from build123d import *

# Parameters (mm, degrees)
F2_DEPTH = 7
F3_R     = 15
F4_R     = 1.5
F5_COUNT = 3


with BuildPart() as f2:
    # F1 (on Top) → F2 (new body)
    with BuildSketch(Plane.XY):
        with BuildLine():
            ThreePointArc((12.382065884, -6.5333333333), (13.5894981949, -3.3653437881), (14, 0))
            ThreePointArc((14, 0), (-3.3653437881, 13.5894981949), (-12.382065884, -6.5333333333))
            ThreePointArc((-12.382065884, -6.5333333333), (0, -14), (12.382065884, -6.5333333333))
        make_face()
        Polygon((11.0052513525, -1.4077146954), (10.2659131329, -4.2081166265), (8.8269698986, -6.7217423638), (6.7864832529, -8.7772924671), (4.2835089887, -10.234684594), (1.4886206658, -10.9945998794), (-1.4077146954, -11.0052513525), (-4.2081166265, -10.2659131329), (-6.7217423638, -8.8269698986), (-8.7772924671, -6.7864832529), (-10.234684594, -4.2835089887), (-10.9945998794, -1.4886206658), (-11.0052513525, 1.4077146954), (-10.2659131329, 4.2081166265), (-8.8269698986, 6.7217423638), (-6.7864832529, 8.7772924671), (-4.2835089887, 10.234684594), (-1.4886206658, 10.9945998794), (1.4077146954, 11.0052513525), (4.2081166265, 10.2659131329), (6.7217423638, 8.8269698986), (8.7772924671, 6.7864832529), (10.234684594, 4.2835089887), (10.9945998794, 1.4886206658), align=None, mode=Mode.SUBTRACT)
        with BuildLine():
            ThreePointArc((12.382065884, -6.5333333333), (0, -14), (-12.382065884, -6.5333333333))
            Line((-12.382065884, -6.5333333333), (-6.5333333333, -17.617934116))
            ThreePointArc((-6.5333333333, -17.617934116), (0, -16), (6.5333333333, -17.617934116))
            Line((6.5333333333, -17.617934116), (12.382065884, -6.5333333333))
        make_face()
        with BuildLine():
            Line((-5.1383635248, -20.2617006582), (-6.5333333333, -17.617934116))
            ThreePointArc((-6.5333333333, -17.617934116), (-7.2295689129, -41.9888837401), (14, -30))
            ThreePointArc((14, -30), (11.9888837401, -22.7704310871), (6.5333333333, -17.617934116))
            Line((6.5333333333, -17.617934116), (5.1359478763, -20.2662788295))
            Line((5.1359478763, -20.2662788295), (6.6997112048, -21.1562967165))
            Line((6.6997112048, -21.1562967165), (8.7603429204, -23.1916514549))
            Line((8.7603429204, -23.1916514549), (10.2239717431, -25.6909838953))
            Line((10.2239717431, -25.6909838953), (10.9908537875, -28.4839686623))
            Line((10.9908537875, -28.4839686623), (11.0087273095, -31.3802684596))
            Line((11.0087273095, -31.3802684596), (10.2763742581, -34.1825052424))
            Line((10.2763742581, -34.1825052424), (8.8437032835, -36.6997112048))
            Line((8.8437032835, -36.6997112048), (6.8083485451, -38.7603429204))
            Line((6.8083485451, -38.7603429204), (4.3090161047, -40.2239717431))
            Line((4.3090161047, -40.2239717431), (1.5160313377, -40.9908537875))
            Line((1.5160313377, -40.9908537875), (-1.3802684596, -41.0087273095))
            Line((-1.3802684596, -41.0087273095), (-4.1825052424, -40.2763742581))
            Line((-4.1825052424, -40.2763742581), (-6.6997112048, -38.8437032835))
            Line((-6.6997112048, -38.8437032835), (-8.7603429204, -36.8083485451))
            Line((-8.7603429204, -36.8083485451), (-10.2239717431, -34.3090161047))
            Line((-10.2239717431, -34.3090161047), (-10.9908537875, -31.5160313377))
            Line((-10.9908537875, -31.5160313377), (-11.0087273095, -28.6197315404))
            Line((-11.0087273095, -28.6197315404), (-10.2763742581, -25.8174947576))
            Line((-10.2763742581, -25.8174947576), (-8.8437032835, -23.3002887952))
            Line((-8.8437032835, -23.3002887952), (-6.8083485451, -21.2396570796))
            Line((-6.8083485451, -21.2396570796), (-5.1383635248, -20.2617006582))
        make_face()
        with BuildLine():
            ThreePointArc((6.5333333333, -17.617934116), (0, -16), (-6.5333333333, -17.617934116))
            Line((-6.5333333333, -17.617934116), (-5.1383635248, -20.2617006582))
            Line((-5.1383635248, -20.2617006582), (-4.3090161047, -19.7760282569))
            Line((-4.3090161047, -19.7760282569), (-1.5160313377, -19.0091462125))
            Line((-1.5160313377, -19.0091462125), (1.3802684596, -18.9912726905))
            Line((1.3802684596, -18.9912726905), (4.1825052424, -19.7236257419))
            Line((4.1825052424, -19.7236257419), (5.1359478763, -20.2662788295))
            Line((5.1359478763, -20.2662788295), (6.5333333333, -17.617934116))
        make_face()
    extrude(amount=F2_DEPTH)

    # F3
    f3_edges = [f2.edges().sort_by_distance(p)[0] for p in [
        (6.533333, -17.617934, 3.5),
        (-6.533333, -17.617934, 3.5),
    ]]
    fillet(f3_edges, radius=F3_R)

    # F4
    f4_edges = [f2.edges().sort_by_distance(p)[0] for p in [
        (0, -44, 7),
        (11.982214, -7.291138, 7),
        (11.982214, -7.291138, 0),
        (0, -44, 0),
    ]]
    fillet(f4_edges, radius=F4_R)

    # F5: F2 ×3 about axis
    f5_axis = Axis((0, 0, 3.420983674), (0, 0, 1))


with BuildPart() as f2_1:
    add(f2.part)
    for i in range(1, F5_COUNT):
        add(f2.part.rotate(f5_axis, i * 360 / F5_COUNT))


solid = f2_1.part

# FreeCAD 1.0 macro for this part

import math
import FreeCAD as App
import Part
import Sketcher

V = App.Vector


def edges_at(feature, points):
    """Names of the edges that pass closest to the given points."""
    edges = feature.Shape.Edges
    near = lambda p: min(range(len(edges)), key=lambda i: edges[i].distToShape(Part.Vertex(*p))[0])
    return sorted({f"Edge{near(p) + 1}" for p in points})

doc = App.newDocument("Part")
body = doc.addObject("PartDesign::Body", "Body")

# Sketch on XY plane
sketch1 = body.newObject("Sketcher::SketchObject", "Sketch")
sketch1.AttachmentSupport = (doc.getObject("XY_Plane"), [""])
sketch1.MapMode = "FlatFace"
sketch1.addGeometry([
    Part.ArcOfCircle(Part.Circle(V(0, 0, 0), V(0, 0, 1), 14), math.radians(-27.818139), math.radians(0)),  # 0
    Part.ArcOfCircle(Part.Circle(V(0, 0, 0), V(0, 0, 1), 14), math.radians(0), math.radians(207.818139)),  # 1
    Part.LineSegment(V(-12.382066, -6.533333, 0), V(-6.533333, -17.617934, 0)),  # 2
    Part.ArcOfCircle(Part.Circle(V(0, -30, 0), V(0, 0, 1), 14), math.radians(117.818139), math.radians(360)),  # 3
    Part.ArcOfCircle(Part.Circle(V(0, -30, 0), V(0, 0, 1), 14), math.radians(0), math.radians(62.181861)),  # 4
    Part.LineSegment(V(6.533333, -17.617934, 0), V(12.382066, -6.533333, 0)),  # 5
    Part.LineSegment(V(10.9946, 1.488621, 0), V(11.005251, -1.407715, 0)),  # 6
    Part.LineSegment(V(11.005251, -1.407715, 0), V(10.265913, -4.208117, 0)),  # 7
    Part.LineSegment(V(10.265913, -4.208117, 0), V(8.82697, -6.721742, 0)),  # 8
    Part.LineSegment(V(8.82697, -6.721742, 0), V(6.786483, -8.777292, 0)),  # 9
    Part.LineSegment(V(6.786483, -8.777292, 0), V(4.283509, -10.234685, 0)),  # 10
    Part.LineSegment(V(4.283509, -10.234685, 0), V(1.488621, -10.9946, 0)),  # 11
    Part.LineSegment(V(1.488621, -10.9946, 0), V(-1.407715, -11.005251, 0)),  # 12
    Part.LineSegment(V(-1.407715, -11.005251, 0), V(-4.208117, -10.265913, 0)),  # 13
    Part.LineSegment(V(-4.208117, -10.265913, 0), V(-6.721742, -8.82697, 0)),  # 14
    Part.LineSegment(V(-6.721742, -8.82697, 0), V(-8.777292, -6.786483, 0)),  # 15
    Part.LineSegment(V(-8.777292, -6.786483, 0), V(-10.234685, -4.283509, 0)),  # 16
    Part.LineSegment(V(-10.234685, -4.283509, 0), V(-10.9946, -1.488621, 0)),  # 17
    Part.LineSegment(V(-10.9946, -1.488621, 0), V(-11.005251, 1.407715, 0)),  # 18
    Part.LineSegment(V(-11.005251, 1.407715, 0), V(-10.265913, 4.208117, 0)),  # 19
    Part.LineSegment(V(-10.265913, 4.208117, 0), V(-8.82697, 6.721742, 0)),  # 20
    Part.LineSegment(V(-8.82697, 6.721742, 0), V(-6.786483, 8.777292, 0)),  # 21
    Part.LineSegment(V(-6.786483, 8.777292, 0), V(-4.283509, 10.234685, 0)),  # 22
    Part.LineSegment(V(-4.283509, 10.234685, 0), V(-1.488621, 10.9946, 0)),  # 23
    Part.LineSegment(V(-1.488621, 10.9946, 0), V(1.407715, 11.005251, 0)),  # 24
    Part.LineSegment(V(1.407715, 11.005251, 0), V(4.208117, 10.265913, 0)),  # 25
    Part.LineSegment(V(4.208117, 10.265913, 0), V(6.721742, 8.82697, 0)),  # 26
    Part.LineSegment(V(6.721742, 8.82697, 0), V(8.777292, 6.786483, 0)),  # 27
    Part.LineSegment(V(8.777292, 6.786483, 0), V(10.234685, 4.283509, 0)),  # 28
    Part.LineSegment(V(10.234685, 4.283509, 0), V(10.9946, 1.488621, 0)),  # 29
    Part.LineSegment(V(-5.138364, -20.261701, 0), V(-4.309016, -19.776028, 0)),  # 30
    Part.LineSegment(V(-4.309016, -19.776028, 0), V(-1.516031, -19.009146, 0)),  # 31
    Part.LineSegment(V(-1.516031, -19.009146, 0), V(1.380268, -18.991273, 0)),  # 32
    Part.LineSegment(V(1.380268, -18.991273, 0), V(4.182505, -19.723626, 0)),  # 33
    Part.LineSegment(V(4.182505, -19.723626, 0), V(5.135948, -20.266279, 0)),  # 34
    Part.LineSegment(V(5.135948, -20.266279, 0), V(6.699711, -21.156297, 0)),  # 35
    Part.LineSegment(V(6.699711, -21.156297, 0), V(8.760343, -23.191651, 0)),  # 36
    Part.LineSegment(V(8.760343, -23.191651, 0), V(10.223972, -25.690984, 0)),  # 37
    Part.LineSegment(V(10.223972, -25.690984, 0), V(10.990854, -28.483969, 0)),  # 38
    Part.LineSegment(V(10.990854, -28.483969, 0), V(11.008727, -31.380268, 0)),  # 39
    Part.LineSegment(V(11.008727, -31.380268, 0), V(10.276374, -34.182505, 0)),  # 40
    Part.LineSegment(V(10.276374, -34.182505, 0), V(8.843703, -36.699711, 0)),  # 41
    Part.LineSegment(V(8.843703, -36.699711, 0), V(6.808349, -38.760343, 0)),  # 42
    Part.LineSegment(V(6.808349, -38.760343, 0), V(4.309016, -40.223972, 0)),  # 43
    Part.LineSegment(V(4.309016, -40.223972, 0), V(1.516031, -40.990854, 0)),  # 44
    Part.LineSegment(V(1.516031, -40.990854, 0), V(-1.380268, -41.008727, 0)),  # 45
    Part.LineSegment(V(-1.380268, -41.008727, 0), V(-4.182505, -40.276374, 0)),  # 46
    Part.LineSegment(V(-4.182505, -40.276374, 0), V(-6.699711, -38.843703, 0)),  # 47
    Part.LineSegment(V(-6.699711, -38.843703, 0), V(-8.760343, -36.808349, 0)),  # 48
    Part.LineSegment(V(-8.760343, -36.808349, 0), V(-10.223972, -34.309016, 0)),  # 49
    Part.LineSegment(V(-10.223972, -34.309016, 0), V(-10.990854, -31.516031, 0)),  # 50
    Part.LineSegment(V(-10.990854, -31.516031, 0), V(-11.008727, -28.619732, 0)),  # 51
    Part.LineSegment(V(-11.008727, -28.619732, 0), V(-10.276374, -25.817495, 0)),  # 52
    Part.LineSegment(V(-10.276374, -25.817495, 0), V(-8.843703, -23.300289, 0)),  # 53
    Part.LineSegment(V(-8.843703, -23.300289, 0), V(-6.808349, -21.239657, 0)),  # 54
    Part.LineSegment(V(-6.808349, -21.239657, 0), V(-5.138364, -20.261701, 0)),  # 55
], False)
sketch1.addConstraint([
    Sketcher.Constraint("Coincident", 0, 2, 1, 1),
    Sketcher.Constraint("Coincident", 1, 2, 2, 1),
    Sketcher.Constraint("Coincident", 2, 2, 3, 1),
    Sketcher.Constraint("Coincident", 3, 2, 4, 1),
    Sketcher.Constraint("Coincident", 4, 2, 5, 1),
    Sketcher.Constraint("Coincident", 5, 2, 0, 1),
    Sketcher.Constraint("Coincident", 6, 2, 7, 1),
    Sketcher.Constraint("Coincident", 7, 2, 8, 1),
    Sketcher.Constraint("Coincident", 8, 2, 9, 1),
    Sketcher.Constraint("Coincident", 9, 2, 10, 1),
    Sketcher.Constraint("Coincident", 10, 2, 11, 1),
    Sketcher.Constraint("Coincident", 11, 2, 12, 1),
    Sketcher.Constraint("Coincident", 12, 2, 13, 1),
    Sketcher.Constraint("Coincident", 13, 2, 14, 1),
    Sketcher.Constraint("Coincident", 14, 2, 15, 1),
    Sketcher.Constraint("Coincident", 15, 2, 16, 1),
    Sketcher.Constraint("Coincident", 16, 2, 17, 1),
    Sketcher.Constraint("Coincident", 17, 2, 18, 1),
    Sketcher.Constraint("Coincident", 18, 2, 19, 1),
    Sketcher.Constraint("Coincident", 19, 2, 20, 1),
    Sketcher.Constraint("Coincident", 20, 2, 21, 1),
    Sketcher.Constraint("Coincident", 21, 2, 22, 1),
    Sketcher.Constraint("Coincident", 22, 2, 23, 1),
    Sketcher.Constraint("Coincident", 23, 2, 24, 1),
    Sketcher.Constraint("Coincident", 24, 2, 25, 1),
    Sketcher.Constraint("Coincident", 25, 2, 26, 1),
    Sketcher.Constraint("Coincident", 26, 2, 27, 1),
    Sketcher.Constraint("Coincident", 27, 2, 28, 1),
    Sketcher.Constraint("Coincident", 28, 2, 29, 1),
    Sketcher.Constraint("Coincident", 29, 2, 6, 1),
    Sketcher.Constraint("Coincident", 30, 2, 31, 1),
    Sketcher.Constraint("Coincident", 31, 2, 32, 1),
    Sketcher.Constraint("Coincident", 32, 2, 33, 1),
    Sketcher.Constraint("Coincident", 33, 2, 34, 1),
    Sketcher.Constraint("Coincident", 34, 2, 35, 1),
    Sketcher.Constraint("Coincident", 35, 2, 36, 1),
    Sketcher.Constraint("Coincident", 36, 2, 37, 1),
    Sketcher.Constraint("Coincident", 37, 2, 38, 1),
    Sketcher.Constraint("Coincident", 38, 2, 39, 1),
    Sketcher.Constraint("Coincident", 39, 2, 40, 1),
    Sketcher.Constraint("Coincident", 40, 2, 41, 1),
    Sketcher.Constraint("Coincident", 41, 2, 42, 1),
    Sketcher.Constraint("Coincident", 42, 2, 43, 1),
    Sketcher.Constraint("Coincident", 43, 2, 44, 1),
    Sketcher.Constraint("Coincident", 44, 2, 45, 1),
    Sketcher.Constraint("Coincident", 45, 2, 46, 1),
    Sketcher.Constraint("Coincident", 46, 2, 47, 1),
    Sketcher.Constraint("Coincident", 47, 2, 48, 1),
    Sketcher.Constraint("Coincident", 48, 2, 49, 1),
    Sketcher.Constraint("Coincident", 49, 2, 50, 1),
    Sketcher.Constraint("Coincident", 50, 2, 51, 1),
    Sketcher.Constraint("Coincident", 51, 2, 52, 1),
    Sketcher.Constraint("Coincident", 52, 2, 53, 1),
    Sketcher.Constraint("Coincident", 53, 2, 54, 1),
    Sketcher.Constraint("Coincident", 54, 2, 55, 1),
    Sketcher.Constraint("Coincident", 55, 2, 30, 1),
    Sketcher.Constraint("Coincident", 0, 3, -1, 1),
    Sketcher.Constraint("Coincident", 1, 3, -1, 1),
    Sketcher.Constraint("Coincident", 4, 3, 3, 3),
    Sketcher.Constraint("PointOnObject", 3, 3, -2),
    Sketcher.Constraint("PointOnObject", 0, 2, -1),
    Sketcher.Constraint("Radius", 0, 14.0),
    Sketcher.Constraint("Radius", 3, 14.0),
    Sketcher.Constraint("DistanceY", 3, 3, -1, 1, 30.0),
    Sketcher.Constraint("DistanceY", 3, 2, -1, 1, 30.0),
    Sketcher.Constraint("Distance", 2, 12.532998),
    Sketcher.Constraint("Distance", 5, 12.532998),
    Sketcher.Constraint("Distance", 35, 1.799302),
    Sketcher.Constraint("DistanceY", 11, 2, -1, 1, 10.9946),
    Sketcher.Constraint("DistanceX", 17, 2, -1, 1, 10.9946),
    Sketcher.Constraint("DistanceY", -1, 1, 23, 2, 10.9946),
    Sketcher.Constraint("DistanceX", -1, 1, 29, 2, 10.9946),
    Sketcher.Constraint("DistanceY", 55, 2, -1, 1, 20.261701),
    Sketcher.Constraint("DistanceY", 2, 2, 1, 2, 11.084601),
    Sketcher.Constraint("DistanceY", 4, 2, 5, 2, 11.084601),
    Sketcher.Constraint("DistanceY", 7, 2, 6, 2, 2.800402),
    Sketcher.Constraint("DistanceX", 13, 2, 12, 2, 2.800402),
    Sketcher.Constraint("DistanceY", 18, 2, 19, 2, 2.800402),
    Sketcher.Constraint("DistanceY", 15, 2, 19, 2, 10.9946),
    Sketcher.Constraint("DistanceX", 24, 2, 25, 2, 2.800402),
    Sketcher.Constraint("DistanceX", 21, 2, 25, 2, 10.9946),
    Sketcher.Constraint("DistanceX", 30, 2, 12, 2, 2.901301),
    Sketcher.Constraint("DistanceX", 2, 2, 31, 2, 5.017302),
    Sketcher.Constraint("DistanceX", 31, 2, 32, 2, 2.8963),
    Sketcher.Constraint("DistanceY", 39, 2, 38, 2, 2.8963),
    Sketcher.Constraint("DistanceX", 45, 2, 44, 2, 2.8963),
    Sketcher.Constraint("DistanceY", 50, 2, 51, 2, 2.8963),
    Sketcher.Constraint("Distance", 30, 0.96109),
    Sketcher.Constraint("DistanceX", -1, 1, 6, 2, 11.005251),
    Sketcher.Constraint("DistanceX", -1, 1, 8, 2, 8.82697),
    Sketcher.Constraint("DistanceX", -1, 1, 10, 2, 4.283509),
    Sketcher.Constraint("DistanceX", -1, 1, 11, 2, 1.488621),
    Sketcher.Constraint("DistanceY", 12, 2, -1, 1, 11.005251),
    Sketcher.Constraint("DistanceY", 14, 2, -1, 1, 8.82697),
    Sketcher.Constraint("DistanceY", 16, 2, -1, 1, 4.283509),
    Sketcher.Constraint("DistanceY", 17, 2, -1, 1, 1.488621),
    Sketcher.Constraint("DistanceX", 18, 2, -1, 1, 11.005251),
    Sketcher.Constraint("DistanceX", 20, 2, -1, 1, 8.82697),
    Sketcher.Constraint("DistanceX", 22, 2, -1, 1, 4.283509),
    Sketcher.Constraint("DistanceX", 23, 2, -1, 1, 1.488621),
    Sketcher.Constraint("DistanceY", -1, 1, 24, 2, 11.005251),
    Sketcher.Constraint("DistanceY", -1, 1, 26, 2, 8.82697),
    Sketcher.Constraint("DistanceY", -1, 1, 28, 2, 4.283509),
    Sketcher.Constraint("DistanceY", -1, 1, 29, 2, 1.488621),
    Sketcher.Constraint("DistanceY", 30, 2, -1, 1, 19.776028),
    Sketcher.Constraint("DistanceY", 34, 2, -1, 1, 20.266279),
    Sketcher.Constraint("DistanceX", -1, 1, 35, 2, 6.699711),
    Sketcher.Constraint("DistanceY", 36, 2, -1, 1, 23.191651),
    Sketcher.Constraint("DistanceX", -1, 1, 37, 2, 10.223972),
    Sketcher.Constraint("DistanceY", 38, 2, -1, 1, 28.483969),
    Sketcher.Constraint("DistanceY", 41, 2, -1, 1, 36.699711),
    Sketcher.Constraint("DistanceX", -1, 1, 42, 2, 6.808349),
    Sketcher.Constraint("DistanceY", 43, 2, -1, 1, 40.223972),
    Sketcher.Constraint("DistanceX", -1, 1, 44, 2, 1.516031),
    Sketcher.Constraint("DistanceX", 47, 2, -1, 1, 6.699711),
    Sketcher.Constraint("DistanceY", 48, 2, -1, 1, 36.808349),
    Sketcher.Constraint("DistanceX", 49, 2, -1, 1, 10.223972),
    Sketcher.Constraint("DistanceY", 50, 2, -1, 1, 31.516031),
    Sketcher.Constraint("DistanceY", 53, 2, -1, 1, 23.300289),
    Sketcher.Constraint("DistanceX", 54, 2, -1, 1, 6.808349),
    Sketcher.Constraint("DistanceY", 5, 2, 6, 2, 5.125619),
    Sketcher.Constraint("DistanceX", 7, 2, 6, 2, 0.739338),
    Sketcher.Constraint("DistanceY", 8, 2, 5, 2, 0.188409),
    Sketcher.Constraint("DistanceY", 9, 2, 8, 2, 2.05555),
    Sketcher.Constraint("DistanceX", 9, 2, 7, 2, 3.47943),
    Sketcher.Constraint("DistanceY", 4, 2, 10, 2, 7.38325),
    Sketcher.Constraint("DistanceX", 2, 2, 12, 2, 5.125619),
    Sketcher.Constraint("DistanceY", 12, 2, 13, 2, 0.739338),
    Sketcher.Constraint("DistanceX", 14, 2, 2, 2, 0.188409),
    Sketcher.Constraint("DistanceX", 15, 2, 14, 2, 2.05555),
    Sketcher.Constraint("DistanceY", 15, 2, 1, 2, 0.25315),
    Sketcher.Constraint("DistanceX", 1, 2, 16, 2, 2.147381),
    Sketcher.Constraint("DistanceX", 18, 2, 19, 2, 0.739338),
    Sketcher.Constraint("DistanceY", 16, 2, 20, 2, 11.005251),
    Sketcher.Constraint("DistanceY", 20, 2, 21, 2, 2.05555),
    Sketcher.Constraint("DistanceX", 19, 2, 21, 2, 3.47943),
    Sketcher.Constraint("DistanceY", 18, 2, 22, 2, 8.82697),
    Sketcher.Constraint("DistanceY", 25, 2, 24, 2, 0.739338),
    Sketcher.Constraint("DistanceX", 26, 2, 6, 2, 4.283509),
    Sketcher.Constraint("DistanceX", 26, 2, 27, 2, 2.05555),
    Sketcher.Constraint("DistanceY", 27, 2, 25, 2, 3.47943),
    Sketcher.Constraint("DistanceX", 28, 2, 7, 2, 0.031229),
    Sketcher.Constraint("DistanceY", 32, 2, 4, 2, 1.373339),
    Sketcher.Constraint("DistanceX", 33, 2, 4, 2, 2.350828),
    Sketcher.Constraint("DistanceY", 33, 2, 4, 2, 2.105692),
    Sketcher.Constraint("DistanceY", 33, 2, 31, 2, 0.71448),
    Sketcher.Constraint("DistanceX", 32, 2, 34, 2, 3.755679),
    Sketcher.Constraint("DistanceX", 35, 2, 36, 2, 2.060632),
    Sketcher.Constraint("DistanceY", 37, 2, 33, 2, 5.967358),
    Sketcher.Constraint("DistanceX", 36, 2, 38, 2, 2.230511),
    Sketcher.Constraint("DistanceX", 40, 2, 38, 2, 0.71448),
    Sketcher.Constraint("DistanceY", 40, 2, 37, 2, 8.491521),
    Sketcher.Constraint("DistanceX", 41, 2, 40, 2, 1.432671),
    Sketcher.Constraint("DistanceY", 42, 2, 41, 2, 2.060632),
    Sketcher.Constraint("DistanceX", 42, 2, 39, 2, 4.200379),
    Sketcher.Constraint("DistanceX", 43, 2, 40, 2, 5.967358),
    Sketcher.Constraint("DistanceY", 44, 2, 42, 2, 2.230511),
    Sketcher.Constraint("DistanceY", 44, 2, 46, 2, 0.71448),
    Sketcher.Constraint("DistanceX", 46, 2, 43, 2, 8.491521),
    Sketcher.Constraint("DistanceY", 46, 2, 47, 2, 1.432671),
    Sketcher.Constraint("DistanceX", 48, 2, 47, 2, 2.060632),
    Sketcher.Constraint("DistanceY", 45, 2, 48, 2, 4.200379),
    Sketcher.Constraint("DistanceY", 46, 2, 49, 2, 5.967358),
    Sketcher.Constraint("DistanceX", 50, 2, 48, 2, 2.230511),
    Sketcher.Constraint("DistanceX", 51, 2, 30, 2, 6.699711),
    Sketcher.Constraint("DistanceX", 50, 2, 52, 2, 0.71448),
    Sketcher.Constraint("DistanceY", 49, 2, 52, 2, 8.491521),
    Sketcher.Constraint("DistanceX", 52, 2, 53, 2, 1.432671),
    Sketcher.Constraint("DistanceY", 54, 2, 30, 2, 1.463629),
])
pad1 = body.newObject("PartDesign::Pad", "Pad")
pad1.Profile = sketch1
pad1.Length = 7
doc.recompute()

fillet = body.newObject("PartDesign::Fillet", "Fillet")
fillet.Base = (pad1, edges_at(pad1, [(6.533, -17.618, 3.5), (-6.533, -17.618, 3.5)]))
fillet.Radius = 15
doc.recompute()

fillet2 = body.newObject("PartDesign::Fillet", "Fillet001")
fillet2.Base = (fillet, edges_at(fillet, [
    (-3.745, -43.49, 7),
    (11.982, -7.291, 7),
    (11.982, -7.291, 0),
    (-3.745, -43.49, 0),
]))
fillet2.Radius = 1.5
body2 = doc.addObject("PartDesign::Body", "Body001")
doc.recompute()

body2.BaseFeature = body
doc.recompute()

body3 = doc.addObject("PartDesign::Body", "Body002")
body3.BaseFeature = body
body3.Placement = App.Placement(V(0, 0, 0), App.Rotation(V(0, 0, 1), 120))
boolean = body2.newObject("PartDesign::Boolean", "Boolean")
boolean.Type = "Fuse"
boolean.addObjects([body3])
doc.recompute()

body.Placement = App.Placement(V(0, 0, 0), App.Rotation(V(0, 0, 1), 240))
boolean2 = body2.newObject("PartDesign::Boolean", "Boolean001")
boolean2.Type = "Fuse"
boolean2.addObjects([body])

doc.recompute()
